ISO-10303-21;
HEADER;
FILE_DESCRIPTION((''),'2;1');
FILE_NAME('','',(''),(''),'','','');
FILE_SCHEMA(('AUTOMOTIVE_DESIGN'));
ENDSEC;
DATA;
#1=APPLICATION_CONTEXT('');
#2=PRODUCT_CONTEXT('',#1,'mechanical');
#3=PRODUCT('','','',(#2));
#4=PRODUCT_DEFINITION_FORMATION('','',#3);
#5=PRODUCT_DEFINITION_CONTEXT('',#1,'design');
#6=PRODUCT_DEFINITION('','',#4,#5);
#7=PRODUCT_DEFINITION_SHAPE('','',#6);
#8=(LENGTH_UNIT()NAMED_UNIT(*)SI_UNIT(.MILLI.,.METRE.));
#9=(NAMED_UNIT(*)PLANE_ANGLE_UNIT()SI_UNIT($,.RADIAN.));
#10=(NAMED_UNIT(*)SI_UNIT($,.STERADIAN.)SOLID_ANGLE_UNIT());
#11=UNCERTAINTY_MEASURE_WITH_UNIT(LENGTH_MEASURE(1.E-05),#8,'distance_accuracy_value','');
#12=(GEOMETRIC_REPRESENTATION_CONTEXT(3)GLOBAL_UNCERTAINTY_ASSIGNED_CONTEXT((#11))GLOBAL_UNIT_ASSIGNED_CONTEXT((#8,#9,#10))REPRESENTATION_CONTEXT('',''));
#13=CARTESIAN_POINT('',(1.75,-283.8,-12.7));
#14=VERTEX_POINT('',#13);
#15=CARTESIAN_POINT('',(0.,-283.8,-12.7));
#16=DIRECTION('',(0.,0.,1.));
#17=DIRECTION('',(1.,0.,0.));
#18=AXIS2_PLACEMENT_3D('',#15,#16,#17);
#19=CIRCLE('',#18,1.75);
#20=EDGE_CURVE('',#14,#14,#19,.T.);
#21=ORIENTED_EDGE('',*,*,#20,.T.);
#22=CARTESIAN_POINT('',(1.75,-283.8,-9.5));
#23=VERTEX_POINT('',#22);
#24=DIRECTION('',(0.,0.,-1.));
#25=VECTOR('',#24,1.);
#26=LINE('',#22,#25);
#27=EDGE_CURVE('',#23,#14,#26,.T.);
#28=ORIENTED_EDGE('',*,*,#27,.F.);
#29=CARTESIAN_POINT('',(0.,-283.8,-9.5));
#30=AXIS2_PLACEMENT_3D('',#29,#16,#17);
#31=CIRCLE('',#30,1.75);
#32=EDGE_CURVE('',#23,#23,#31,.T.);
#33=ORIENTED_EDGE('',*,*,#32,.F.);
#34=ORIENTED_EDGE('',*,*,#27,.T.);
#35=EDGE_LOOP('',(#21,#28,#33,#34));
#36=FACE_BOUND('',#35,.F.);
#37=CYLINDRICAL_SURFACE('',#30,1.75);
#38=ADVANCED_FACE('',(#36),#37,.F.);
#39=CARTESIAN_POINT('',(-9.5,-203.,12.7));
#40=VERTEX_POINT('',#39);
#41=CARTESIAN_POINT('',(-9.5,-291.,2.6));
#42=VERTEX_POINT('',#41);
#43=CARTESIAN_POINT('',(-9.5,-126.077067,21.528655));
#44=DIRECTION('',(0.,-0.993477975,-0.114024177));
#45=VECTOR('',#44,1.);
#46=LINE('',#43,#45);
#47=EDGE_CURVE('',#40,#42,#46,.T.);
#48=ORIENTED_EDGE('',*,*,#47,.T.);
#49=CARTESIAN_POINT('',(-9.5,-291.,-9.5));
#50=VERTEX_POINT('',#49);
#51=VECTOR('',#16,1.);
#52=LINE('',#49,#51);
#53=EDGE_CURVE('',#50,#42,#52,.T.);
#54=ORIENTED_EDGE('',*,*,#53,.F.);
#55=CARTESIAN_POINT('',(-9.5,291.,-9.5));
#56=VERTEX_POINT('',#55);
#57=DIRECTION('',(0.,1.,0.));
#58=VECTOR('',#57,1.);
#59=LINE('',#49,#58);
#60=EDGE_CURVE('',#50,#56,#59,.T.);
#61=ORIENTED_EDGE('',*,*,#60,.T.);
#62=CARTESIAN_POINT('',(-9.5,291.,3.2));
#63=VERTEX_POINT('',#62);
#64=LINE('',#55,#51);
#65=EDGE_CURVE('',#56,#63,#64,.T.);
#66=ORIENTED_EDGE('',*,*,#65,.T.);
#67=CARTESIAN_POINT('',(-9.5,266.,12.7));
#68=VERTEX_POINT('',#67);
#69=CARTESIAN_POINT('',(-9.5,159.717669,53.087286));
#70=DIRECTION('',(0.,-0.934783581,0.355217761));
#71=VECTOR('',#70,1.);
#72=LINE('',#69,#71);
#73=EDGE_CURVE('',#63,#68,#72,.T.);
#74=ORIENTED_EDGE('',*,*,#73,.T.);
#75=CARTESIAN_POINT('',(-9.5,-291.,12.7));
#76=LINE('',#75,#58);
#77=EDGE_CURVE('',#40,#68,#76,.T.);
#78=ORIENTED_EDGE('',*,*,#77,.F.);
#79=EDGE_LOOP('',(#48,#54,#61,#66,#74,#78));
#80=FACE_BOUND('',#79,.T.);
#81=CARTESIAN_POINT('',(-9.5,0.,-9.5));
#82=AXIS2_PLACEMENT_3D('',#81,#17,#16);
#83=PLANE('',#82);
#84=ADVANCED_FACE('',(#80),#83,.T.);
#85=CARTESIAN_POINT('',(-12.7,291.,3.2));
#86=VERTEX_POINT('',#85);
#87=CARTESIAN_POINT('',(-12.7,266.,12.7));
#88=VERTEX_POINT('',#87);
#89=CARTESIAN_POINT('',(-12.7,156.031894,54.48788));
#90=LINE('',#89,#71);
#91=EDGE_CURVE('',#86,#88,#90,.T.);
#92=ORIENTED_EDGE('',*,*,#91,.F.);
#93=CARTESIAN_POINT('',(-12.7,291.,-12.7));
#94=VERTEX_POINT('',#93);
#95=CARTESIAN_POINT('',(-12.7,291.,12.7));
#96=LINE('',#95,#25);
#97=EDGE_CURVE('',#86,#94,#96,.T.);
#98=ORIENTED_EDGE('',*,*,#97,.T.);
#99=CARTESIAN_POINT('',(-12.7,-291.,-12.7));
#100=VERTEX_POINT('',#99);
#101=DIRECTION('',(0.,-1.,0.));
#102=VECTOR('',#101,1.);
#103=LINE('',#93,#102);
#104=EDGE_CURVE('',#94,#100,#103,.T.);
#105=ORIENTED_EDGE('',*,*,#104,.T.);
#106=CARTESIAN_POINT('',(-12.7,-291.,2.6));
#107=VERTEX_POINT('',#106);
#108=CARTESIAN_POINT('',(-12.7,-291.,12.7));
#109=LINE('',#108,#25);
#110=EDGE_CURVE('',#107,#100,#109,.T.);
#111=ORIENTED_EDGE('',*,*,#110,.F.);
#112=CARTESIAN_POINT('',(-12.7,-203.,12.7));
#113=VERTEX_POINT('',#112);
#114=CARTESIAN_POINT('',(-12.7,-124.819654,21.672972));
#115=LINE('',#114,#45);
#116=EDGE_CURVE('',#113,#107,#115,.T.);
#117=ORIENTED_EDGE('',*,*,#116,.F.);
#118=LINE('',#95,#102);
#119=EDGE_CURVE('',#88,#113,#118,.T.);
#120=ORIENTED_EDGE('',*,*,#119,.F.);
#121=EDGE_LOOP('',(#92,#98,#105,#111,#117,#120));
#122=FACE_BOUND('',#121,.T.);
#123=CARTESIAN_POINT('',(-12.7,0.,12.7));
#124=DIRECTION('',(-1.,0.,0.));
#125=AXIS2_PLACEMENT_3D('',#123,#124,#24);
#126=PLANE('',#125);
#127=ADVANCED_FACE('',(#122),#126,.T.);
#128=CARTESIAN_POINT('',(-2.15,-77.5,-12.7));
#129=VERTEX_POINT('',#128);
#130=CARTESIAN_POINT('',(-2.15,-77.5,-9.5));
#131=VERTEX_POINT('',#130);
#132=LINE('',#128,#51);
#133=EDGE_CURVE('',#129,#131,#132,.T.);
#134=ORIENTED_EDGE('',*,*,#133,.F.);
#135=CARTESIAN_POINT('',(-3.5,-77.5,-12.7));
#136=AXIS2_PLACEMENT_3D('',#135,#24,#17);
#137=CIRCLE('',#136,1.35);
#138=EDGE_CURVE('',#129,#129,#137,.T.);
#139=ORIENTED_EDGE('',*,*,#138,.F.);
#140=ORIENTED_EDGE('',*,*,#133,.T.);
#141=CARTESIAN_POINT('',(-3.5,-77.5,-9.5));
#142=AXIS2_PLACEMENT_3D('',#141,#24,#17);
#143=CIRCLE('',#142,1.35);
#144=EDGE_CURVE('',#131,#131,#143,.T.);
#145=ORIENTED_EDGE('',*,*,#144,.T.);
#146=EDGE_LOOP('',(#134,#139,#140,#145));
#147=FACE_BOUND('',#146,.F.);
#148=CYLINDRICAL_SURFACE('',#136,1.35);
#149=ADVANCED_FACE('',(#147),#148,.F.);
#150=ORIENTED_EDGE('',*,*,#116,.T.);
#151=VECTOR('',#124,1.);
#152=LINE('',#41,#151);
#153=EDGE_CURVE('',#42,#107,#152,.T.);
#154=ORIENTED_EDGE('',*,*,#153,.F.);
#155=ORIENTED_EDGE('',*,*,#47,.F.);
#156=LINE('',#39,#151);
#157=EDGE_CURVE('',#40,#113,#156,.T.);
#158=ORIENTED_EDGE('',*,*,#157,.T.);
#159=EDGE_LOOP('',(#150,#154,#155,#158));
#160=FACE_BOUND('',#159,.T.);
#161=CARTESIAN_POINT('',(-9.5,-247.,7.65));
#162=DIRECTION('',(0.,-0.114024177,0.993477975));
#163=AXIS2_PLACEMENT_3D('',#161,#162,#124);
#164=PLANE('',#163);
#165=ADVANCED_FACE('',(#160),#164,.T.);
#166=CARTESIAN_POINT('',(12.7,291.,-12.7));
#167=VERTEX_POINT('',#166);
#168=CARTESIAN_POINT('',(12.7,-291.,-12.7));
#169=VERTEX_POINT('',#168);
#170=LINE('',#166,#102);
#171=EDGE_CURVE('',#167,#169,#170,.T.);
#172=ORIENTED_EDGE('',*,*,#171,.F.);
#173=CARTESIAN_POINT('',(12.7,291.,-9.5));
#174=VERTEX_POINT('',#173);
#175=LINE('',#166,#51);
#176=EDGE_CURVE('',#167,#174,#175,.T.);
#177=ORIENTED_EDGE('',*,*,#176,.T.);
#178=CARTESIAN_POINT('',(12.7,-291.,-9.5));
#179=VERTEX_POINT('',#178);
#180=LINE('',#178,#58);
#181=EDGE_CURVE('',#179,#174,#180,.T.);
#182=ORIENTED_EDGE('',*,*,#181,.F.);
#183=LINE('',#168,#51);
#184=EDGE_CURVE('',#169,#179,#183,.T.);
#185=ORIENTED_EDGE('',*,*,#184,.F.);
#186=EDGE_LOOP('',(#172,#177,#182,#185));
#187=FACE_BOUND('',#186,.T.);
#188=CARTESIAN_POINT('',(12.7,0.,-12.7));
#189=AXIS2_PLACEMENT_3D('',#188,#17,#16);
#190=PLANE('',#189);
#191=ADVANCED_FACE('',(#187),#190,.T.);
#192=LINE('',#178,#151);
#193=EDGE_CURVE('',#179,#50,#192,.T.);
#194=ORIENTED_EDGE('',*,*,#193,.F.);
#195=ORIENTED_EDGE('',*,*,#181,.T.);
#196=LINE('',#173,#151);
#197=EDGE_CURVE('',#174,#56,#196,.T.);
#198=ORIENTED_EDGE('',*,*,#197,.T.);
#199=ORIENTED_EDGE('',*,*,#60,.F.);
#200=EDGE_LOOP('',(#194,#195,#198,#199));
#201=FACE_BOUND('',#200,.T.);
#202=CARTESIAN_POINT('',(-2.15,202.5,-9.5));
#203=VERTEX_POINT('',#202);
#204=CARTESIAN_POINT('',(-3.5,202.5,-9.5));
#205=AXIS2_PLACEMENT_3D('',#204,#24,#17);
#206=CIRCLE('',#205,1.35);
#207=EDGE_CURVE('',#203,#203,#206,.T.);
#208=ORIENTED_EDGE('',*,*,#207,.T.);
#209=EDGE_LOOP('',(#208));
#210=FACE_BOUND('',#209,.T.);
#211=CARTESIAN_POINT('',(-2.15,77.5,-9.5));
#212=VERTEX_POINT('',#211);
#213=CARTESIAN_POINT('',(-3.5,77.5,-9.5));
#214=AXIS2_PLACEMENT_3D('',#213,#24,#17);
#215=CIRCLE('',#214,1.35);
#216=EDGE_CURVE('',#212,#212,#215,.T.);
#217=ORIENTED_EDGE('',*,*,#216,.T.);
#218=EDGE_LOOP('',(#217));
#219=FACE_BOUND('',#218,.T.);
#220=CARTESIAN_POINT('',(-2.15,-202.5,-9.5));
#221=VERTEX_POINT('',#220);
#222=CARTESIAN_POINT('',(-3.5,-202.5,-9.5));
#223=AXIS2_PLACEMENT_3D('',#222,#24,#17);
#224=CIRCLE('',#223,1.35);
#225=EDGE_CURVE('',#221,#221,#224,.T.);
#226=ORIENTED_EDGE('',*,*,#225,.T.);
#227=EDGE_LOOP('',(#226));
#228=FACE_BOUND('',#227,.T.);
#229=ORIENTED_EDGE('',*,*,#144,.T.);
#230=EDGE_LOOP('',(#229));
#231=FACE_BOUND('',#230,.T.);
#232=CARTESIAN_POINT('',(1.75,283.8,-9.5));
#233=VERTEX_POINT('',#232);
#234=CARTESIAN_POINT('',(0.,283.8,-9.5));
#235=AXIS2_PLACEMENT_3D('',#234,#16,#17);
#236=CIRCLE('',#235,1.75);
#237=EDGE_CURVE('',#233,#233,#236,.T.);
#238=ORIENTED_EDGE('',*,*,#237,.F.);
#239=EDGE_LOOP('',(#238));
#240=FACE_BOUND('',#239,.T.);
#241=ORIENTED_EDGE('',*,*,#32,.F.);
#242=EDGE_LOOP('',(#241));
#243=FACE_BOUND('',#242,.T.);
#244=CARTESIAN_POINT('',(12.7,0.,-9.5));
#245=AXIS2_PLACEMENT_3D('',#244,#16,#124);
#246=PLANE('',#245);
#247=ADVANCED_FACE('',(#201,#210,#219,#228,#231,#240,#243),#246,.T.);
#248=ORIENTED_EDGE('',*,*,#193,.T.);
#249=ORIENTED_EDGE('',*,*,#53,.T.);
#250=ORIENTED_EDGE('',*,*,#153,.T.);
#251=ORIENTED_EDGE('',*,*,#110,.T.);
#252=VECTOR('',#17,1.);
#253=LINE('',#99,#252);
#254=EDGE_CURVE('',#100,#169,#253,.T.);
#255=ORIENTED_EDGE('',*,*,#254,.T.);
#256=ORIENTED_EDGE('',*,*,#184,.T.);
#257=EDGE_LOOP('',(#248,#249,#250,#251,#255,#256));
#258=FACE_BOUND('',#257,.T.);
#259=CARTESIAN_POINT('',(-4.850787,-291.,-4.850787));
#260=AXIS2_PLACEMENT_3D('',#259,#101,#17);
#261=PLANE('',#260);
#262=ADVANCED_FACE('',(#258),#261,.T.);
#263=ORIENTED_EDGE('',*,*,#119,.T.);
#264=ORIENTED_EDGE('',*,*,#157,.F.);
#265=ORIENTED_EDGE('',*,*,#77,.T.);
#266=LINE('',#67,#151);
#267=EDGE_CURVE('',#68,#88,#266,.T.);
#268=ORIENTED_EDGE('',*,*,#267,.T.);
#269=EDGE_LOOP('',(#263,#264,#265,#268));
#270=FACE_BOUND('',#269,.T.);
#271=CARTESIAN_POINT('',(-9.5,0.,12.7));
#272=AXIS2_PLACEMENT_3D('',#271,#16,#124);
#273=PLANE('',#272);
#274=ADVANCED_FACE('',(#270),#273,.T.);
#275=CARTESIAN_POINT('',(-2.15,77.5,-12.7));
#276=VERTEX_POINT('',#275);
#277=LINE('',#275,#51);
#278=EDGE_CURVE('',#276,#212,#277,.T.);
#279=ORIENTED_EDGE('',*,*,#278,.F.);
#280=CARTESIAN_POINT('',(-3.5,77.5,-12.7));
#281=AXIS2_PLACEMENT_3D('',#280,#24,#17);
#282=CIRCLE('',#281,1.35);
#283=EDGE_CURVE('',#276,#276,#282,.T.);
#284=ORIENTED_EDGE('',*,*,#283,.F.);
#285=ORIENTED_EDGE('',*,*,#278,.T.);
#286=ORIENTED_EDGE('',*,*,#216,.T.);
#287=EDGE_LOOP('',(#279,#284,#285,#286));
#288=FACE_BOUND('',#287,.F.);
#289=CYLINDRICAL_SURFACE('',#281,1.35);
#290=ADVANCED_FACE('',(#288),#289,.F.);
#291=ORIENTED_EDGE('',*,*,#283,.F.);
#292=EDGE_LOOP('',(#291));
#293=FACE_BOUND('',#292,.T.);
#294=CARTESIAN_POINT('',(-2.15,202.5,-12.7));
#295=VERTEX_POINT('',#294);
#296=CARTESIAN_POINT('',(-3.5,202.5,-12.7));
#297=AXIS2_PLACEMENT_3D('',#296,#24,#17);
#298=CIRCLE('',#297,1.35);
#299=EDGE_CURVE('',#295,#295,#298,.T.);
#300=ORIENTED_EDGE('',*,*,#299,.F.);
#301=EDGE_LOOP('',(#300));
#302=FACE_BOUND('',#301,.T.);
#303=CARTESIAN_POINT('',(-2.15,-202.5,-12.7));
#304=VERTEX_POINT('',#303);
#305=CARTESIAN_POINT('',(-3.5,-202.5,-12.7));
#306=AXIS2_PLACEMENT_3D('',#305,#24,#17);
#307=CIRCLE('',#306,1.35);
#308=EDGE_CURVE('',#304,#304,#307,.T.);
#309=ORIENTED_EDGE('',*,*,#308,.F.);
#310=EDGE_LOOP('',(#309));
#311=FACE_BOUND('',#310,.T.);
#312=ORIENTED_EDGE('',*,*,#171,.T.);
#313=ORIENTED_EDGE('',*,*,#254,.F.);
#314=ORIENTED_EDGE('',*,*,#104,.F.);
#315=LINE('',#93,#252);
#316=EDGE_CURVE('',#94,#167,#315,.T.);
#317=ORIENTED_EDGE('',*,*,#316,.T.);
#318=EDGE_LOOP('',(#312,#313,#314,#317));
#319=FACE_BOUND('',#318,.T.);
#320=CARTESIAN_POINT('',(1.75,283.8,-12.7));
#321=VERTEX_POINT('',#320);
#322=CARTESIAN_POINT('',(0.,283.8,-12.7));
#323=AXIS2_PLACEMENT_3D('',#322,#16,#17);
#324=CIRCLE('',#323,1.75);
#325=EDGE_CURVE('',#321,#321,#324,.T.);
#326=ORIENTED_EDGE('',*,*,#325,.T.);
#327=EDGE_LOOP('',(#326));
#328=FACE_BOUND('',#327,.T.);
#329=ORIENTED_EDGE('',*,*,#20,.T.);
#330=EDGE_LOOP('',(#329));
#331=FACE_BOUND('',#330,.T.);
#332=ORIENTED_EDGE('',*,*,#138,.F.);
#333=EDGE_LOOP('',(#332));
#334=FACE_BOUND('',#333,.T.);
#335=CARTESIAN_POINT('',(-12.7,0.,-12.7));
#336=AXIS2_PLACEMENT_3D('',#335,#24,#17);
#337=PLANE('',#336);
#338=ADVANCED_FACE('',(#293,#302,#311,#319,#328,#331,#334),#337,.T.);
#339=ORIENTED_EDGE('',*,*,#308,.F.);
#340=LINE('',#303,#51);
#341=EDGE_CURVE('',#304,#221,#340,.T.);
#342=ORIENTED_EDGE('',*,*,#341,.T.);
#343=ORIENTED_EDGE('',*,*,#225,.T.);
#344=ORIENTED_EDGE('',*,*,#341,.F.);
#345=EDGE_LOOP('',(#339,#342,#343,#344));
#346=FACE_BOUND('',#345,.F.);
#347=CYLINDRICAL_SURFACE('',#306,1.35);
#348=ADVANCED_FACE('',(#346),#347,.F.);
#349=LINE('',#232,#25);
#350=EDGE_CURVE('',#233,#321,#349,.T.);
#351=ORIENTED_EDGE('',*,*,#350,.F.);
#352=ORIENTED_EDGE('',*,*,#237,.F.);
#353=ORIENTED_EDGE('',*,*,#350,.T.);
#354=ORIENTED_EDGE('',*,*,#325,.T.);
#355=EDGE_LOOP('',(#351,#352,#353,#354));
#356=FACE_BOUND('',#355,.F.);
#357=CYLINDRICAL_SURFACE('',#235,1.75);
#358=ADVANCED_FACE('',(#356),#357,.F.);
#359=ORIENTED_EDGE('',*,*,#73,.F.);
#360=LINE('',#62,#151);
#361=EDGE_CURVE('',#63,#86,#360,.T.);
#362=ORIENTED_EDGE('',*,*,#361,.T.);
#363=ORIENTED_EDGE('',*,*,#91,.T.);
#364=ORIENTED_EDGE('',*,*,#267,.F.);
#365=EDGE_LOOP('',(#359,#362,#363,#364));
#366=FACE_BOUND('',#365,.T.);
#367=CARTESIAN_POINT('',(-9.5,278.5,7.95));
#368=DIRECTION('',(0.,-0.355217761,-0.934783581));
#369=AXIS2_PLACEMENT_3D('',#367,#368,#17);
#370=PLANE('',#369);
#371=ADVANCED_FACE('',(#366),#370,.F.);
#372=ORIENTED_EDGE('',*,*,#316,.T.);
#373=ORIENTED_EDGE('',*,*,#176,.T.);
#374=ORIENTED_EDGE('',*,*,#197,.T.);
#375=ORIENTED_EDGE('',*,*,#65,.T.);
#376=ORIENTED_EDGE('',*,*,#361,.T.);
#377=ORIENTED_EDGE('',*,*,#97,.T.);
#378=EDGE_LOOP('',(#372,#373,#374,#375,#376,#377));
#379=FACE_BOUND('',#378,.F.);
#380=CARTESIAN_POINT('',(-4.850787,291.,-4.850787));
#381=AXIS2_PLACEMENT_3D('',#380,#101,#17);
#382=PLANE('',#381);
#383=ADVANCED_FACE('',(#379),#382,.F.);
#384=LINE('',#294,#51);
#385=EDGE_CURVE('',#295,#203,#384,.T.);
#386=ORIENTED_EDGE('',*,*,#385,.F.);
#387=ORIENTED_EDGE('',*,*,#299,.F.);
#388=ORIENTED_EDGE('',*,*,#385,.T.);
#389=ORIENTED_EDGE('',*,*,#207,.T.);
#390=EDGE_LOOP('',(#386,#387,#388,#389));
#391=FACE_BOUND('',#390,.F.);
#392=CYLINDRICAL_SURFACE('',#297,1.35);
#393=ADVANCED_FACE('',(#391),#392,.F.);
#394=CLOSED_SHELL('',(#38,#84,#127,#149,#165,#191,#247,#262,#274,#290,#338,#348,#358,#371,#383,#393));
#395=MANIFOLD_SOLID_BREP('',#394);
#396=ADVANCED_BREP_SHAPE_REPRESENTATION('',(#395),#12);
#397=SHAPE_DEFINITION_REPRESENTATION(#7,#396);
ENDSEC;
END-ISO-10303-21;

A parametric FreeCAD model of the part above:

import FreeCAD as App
import Part
import Sketcher

V = App.Vector


def edges_at(feature, points):
    """Names of the edges that pass closest to the given points."""
    edges = feature.Shape.Edges
    near = lambda p: min(range(len(edges)), key=lambda i: edges[i].distToShape(Part.Vertex(*p))[0])
    return sorted({f"Edge{near(p) + 1}" for p in points})

doc = App.newDocument("Part")
body = doc.addObject("PartDesign::Body", "Body")

# Sketch on XZ plane
sketch1 = doc.addObject("Sketcher::SketchObject", "Sketch")
body.addObject(sketch1)
sketch1.AttachmentSupport = (doc.XZ_Plane, [""])
sketch1.MapMode = "FlatFace"
sketch1.addGeometry(Part.LineSegment(V(-9.5, 12.7, 0), V(-12.7, 12.7, 0)), False)
sketch1.addGeometry(Part.LineSegment(V(-12.7, 12.7, 0), V(-12.7, -12.7, 0)), False)
sketch1.addGeometry(Part.LineSegment(V(-12.7, -12.7, 0), V(12.7, -12.7, 0)), False)
sketch1.addGeometry(Part.LineSegment(V(12.7, -12.7, 0), V(12.7, -9.5, 0)), False)
sketch1.addGeometry(Part.LineSegment(V(12.7, -9.5, 0), V(-9.5, -9.5, 0)), False)
sketch1.addGeometry(Part.LineSegment(V(-9.5, -9.5, 0), V(-9.5, 12.7, 0)), False)
sketch1.addConstraint(Sketcher.Constraint("Coincident", 0, 2, 1, 1))
sketch1.addConstraint(Sketcher.Constraint("Coincident", 1, 2, 2, 1))
sketch1.addConstraint(Sketcher.Constraint("Coincident", 2, 2, 3, 1))
sketch1.addConstraint(Sketcher.Constraint("Coincident", 3, 2, 4, 1))
sketch1.addConstraint(Sketcher.Constraint("Coincident", 4, 2, 5, 1))
sketch1.addConstraint(Sketcher.Constraint("Coincident", 5, 2, 0, 1))
sketch1.addConstraint(Sketcher.Constraint("Horizontal", 0))
sketch1.addConstraint(Sketcher.Constraint("Vertical", 1))
sketch1.addConstraint(Sketcher.Constraint("Horizontal", 2))
sketch1.addConstraint(Sketcher.Constraint("Vertical", 3))
sketch1.addConstraint(Sketcher.Constraint("Horizontal", 4))
sketch1.addConstraint(Sketcher.Constraint("Vertical", 5))
sketch1.addConstraint(Sketcher.Constraint("Symmetric", 0, 2, 2, 2, -1, 1))
sketch1.addConstraint(Sketcher.Constraint("Equal", 2, 1))
sketch1.addConstraint(Sketcher.Constraint("Equal", 0, 3))
sketch1.addConstraint(Sketcher.Constraint("DistanceX", 0, 2, 0, 1, 3.2))
sketch1.addConstraint(Sketcher.Constraint("DistanceX", 2, 1, 2, 2, 25.4))
pad1 = doc.addObject("PartDesign::Pad", "Pad")
body.addObject(pad1)
pad1.Profile = sketch1
pad1.Length = 582
pad1.Midplane = True
doc.recompute()

chamfer = doc.addObject("PartDesign::Chamfer", "Chamfer")
body.addObject(chamfer)
chamfer.Base = (pad1, edges_at(pad1, [(-11.1, -291, 12.7)]))
chamfer.ChamferType = "Two distances"
chamfer.Size = 88
chamfer.Size2 = 10.1
doc.recompute()

chamfer2 = doc.addObject("PartDesign::Chamfer", "Chamfer001")
body.addObject(chamfer2)
chamfer2.Base = (chamfer, edges_at(chamfer, [(-11.1, 291, 12.7)]))
chamfer2.ChamferType = "Two distances"
chamfer2.Size = 9.5
chamfer2.Size2 = 25
chamfer2.FlipDirection = True

# Sketch on XY plane
sketch2 = doc.addObject("Sketcher::SketchObject", "Sketch001")
body.addObject(sketch2)
sketch2.AttachmentSupport = (doc.XY_Plane, [""])
sketch2.MapMode = "FlatFace"
sketch2.AttachmentOffset = App.Placement(V(0, 0, -9.5), App.Rotation())
sketch2.addGeometry(Part.Circle(V(0, -283.8, 0), V(0, 0, 1), 1.75), False)
sketch2.addGeometry(Part.Circle(V(0, 283.8, 0), V(0, 0, 1), 1.75), False)
sketch2.addConstraint(Sketcher.Constraint("Equal", 0, 1))
sketch2.addConstraint(Sketcher.Constraint("Symmetric", 0, 3, 1, 3, -1, 1))
sketch2.addConstraint(Sketcher.Constraint("PointOnObject", 0, 3, -2))
sketch2.addConstraint(Sketcher.Constraint("Diameter", 0, 3.5))
sketch2.addConstraint(Sketcher.Constraint("DistanceY", 0, 3, -1, 1, 283.8))
pocket1 = doc.addObject("PartDesign::Pocket", "Pocket")
body.addObject(pocket1)
pocket1.Profile = sketch2
pocket1.Type = "ThroughAll"

# Sketch on XY plane
sketch3 = doc.addObject("Sketcher::SketchObject", "Sketch002")
body.addObject(sketch3)
sketch3.AttachmentSupport = (doc.XY_Plane, [""])
sketch3.MapMode = "FlatFace"
sketch3.AttachmentOffset = App.Placement(V(0, 0, -12.7), App.Rotation())
sketch3.addGeometry(Part.Circle(V(-3.5, -77.5, 0), V(0, 0, 1), 1.35), False)
sketch3.addGeometry(Part.Circle(V(-3.5, 77.5, 0), V(0, 0, 1), 1.35), False)
sketch3.addGeometry(Part.Circle(V(-3.5, 202.5, 0), V(0, 0, 1), 1.35), False)
sketch3.addGeometry(Part.Circle(V(-3.5, -202.5, 0), V(0, 0, 1), 1.35), False)
sketch3.addConstraint(Sketcher.Constraint("Equal", 0, 1))
sketch3.addConstraint(Sketcher.Constraint("Equal", 1, 2))
sketch3.addConstraint(Sketcher.Constraint("Equal", 2, 3))
sketch3.addConstraint(Sketcher.Constraint("Symmetric", 0, 3, 1, 3, -1))
sketch3.addConstraint(Sketcher.Constraint("Symmetric", 2, 3, 3, 3, -1))
sketch3.addConstraint(Sketcher.Constraint("Vertical", 1, 3, 2, 3))
sketch3.addConstraint(Sketcher.Constraint("Diameter", 0, 2.7))
sketch3.addConstraint(Sketcher.Constraint("DistanceY", 0, 3, 1, 3, 155.0))
sketch3.addConstraint(Sketcher.Constraint("DistanceY", 1, 3, 2, 3, 125.0))
sketch3.addConstraint(Sketcher.Constraint("DistanceX", 0, 3, -1, 1, 3.5))
pocket2 = doc.addObject("PartDesign::Pocket", "Pocket001")
body.addObject(pocket2)
pocket2.Profile = sketch3
pocket2.Type = "ThroughAll"
pocket2.Reversed = True

doc.recompute()
